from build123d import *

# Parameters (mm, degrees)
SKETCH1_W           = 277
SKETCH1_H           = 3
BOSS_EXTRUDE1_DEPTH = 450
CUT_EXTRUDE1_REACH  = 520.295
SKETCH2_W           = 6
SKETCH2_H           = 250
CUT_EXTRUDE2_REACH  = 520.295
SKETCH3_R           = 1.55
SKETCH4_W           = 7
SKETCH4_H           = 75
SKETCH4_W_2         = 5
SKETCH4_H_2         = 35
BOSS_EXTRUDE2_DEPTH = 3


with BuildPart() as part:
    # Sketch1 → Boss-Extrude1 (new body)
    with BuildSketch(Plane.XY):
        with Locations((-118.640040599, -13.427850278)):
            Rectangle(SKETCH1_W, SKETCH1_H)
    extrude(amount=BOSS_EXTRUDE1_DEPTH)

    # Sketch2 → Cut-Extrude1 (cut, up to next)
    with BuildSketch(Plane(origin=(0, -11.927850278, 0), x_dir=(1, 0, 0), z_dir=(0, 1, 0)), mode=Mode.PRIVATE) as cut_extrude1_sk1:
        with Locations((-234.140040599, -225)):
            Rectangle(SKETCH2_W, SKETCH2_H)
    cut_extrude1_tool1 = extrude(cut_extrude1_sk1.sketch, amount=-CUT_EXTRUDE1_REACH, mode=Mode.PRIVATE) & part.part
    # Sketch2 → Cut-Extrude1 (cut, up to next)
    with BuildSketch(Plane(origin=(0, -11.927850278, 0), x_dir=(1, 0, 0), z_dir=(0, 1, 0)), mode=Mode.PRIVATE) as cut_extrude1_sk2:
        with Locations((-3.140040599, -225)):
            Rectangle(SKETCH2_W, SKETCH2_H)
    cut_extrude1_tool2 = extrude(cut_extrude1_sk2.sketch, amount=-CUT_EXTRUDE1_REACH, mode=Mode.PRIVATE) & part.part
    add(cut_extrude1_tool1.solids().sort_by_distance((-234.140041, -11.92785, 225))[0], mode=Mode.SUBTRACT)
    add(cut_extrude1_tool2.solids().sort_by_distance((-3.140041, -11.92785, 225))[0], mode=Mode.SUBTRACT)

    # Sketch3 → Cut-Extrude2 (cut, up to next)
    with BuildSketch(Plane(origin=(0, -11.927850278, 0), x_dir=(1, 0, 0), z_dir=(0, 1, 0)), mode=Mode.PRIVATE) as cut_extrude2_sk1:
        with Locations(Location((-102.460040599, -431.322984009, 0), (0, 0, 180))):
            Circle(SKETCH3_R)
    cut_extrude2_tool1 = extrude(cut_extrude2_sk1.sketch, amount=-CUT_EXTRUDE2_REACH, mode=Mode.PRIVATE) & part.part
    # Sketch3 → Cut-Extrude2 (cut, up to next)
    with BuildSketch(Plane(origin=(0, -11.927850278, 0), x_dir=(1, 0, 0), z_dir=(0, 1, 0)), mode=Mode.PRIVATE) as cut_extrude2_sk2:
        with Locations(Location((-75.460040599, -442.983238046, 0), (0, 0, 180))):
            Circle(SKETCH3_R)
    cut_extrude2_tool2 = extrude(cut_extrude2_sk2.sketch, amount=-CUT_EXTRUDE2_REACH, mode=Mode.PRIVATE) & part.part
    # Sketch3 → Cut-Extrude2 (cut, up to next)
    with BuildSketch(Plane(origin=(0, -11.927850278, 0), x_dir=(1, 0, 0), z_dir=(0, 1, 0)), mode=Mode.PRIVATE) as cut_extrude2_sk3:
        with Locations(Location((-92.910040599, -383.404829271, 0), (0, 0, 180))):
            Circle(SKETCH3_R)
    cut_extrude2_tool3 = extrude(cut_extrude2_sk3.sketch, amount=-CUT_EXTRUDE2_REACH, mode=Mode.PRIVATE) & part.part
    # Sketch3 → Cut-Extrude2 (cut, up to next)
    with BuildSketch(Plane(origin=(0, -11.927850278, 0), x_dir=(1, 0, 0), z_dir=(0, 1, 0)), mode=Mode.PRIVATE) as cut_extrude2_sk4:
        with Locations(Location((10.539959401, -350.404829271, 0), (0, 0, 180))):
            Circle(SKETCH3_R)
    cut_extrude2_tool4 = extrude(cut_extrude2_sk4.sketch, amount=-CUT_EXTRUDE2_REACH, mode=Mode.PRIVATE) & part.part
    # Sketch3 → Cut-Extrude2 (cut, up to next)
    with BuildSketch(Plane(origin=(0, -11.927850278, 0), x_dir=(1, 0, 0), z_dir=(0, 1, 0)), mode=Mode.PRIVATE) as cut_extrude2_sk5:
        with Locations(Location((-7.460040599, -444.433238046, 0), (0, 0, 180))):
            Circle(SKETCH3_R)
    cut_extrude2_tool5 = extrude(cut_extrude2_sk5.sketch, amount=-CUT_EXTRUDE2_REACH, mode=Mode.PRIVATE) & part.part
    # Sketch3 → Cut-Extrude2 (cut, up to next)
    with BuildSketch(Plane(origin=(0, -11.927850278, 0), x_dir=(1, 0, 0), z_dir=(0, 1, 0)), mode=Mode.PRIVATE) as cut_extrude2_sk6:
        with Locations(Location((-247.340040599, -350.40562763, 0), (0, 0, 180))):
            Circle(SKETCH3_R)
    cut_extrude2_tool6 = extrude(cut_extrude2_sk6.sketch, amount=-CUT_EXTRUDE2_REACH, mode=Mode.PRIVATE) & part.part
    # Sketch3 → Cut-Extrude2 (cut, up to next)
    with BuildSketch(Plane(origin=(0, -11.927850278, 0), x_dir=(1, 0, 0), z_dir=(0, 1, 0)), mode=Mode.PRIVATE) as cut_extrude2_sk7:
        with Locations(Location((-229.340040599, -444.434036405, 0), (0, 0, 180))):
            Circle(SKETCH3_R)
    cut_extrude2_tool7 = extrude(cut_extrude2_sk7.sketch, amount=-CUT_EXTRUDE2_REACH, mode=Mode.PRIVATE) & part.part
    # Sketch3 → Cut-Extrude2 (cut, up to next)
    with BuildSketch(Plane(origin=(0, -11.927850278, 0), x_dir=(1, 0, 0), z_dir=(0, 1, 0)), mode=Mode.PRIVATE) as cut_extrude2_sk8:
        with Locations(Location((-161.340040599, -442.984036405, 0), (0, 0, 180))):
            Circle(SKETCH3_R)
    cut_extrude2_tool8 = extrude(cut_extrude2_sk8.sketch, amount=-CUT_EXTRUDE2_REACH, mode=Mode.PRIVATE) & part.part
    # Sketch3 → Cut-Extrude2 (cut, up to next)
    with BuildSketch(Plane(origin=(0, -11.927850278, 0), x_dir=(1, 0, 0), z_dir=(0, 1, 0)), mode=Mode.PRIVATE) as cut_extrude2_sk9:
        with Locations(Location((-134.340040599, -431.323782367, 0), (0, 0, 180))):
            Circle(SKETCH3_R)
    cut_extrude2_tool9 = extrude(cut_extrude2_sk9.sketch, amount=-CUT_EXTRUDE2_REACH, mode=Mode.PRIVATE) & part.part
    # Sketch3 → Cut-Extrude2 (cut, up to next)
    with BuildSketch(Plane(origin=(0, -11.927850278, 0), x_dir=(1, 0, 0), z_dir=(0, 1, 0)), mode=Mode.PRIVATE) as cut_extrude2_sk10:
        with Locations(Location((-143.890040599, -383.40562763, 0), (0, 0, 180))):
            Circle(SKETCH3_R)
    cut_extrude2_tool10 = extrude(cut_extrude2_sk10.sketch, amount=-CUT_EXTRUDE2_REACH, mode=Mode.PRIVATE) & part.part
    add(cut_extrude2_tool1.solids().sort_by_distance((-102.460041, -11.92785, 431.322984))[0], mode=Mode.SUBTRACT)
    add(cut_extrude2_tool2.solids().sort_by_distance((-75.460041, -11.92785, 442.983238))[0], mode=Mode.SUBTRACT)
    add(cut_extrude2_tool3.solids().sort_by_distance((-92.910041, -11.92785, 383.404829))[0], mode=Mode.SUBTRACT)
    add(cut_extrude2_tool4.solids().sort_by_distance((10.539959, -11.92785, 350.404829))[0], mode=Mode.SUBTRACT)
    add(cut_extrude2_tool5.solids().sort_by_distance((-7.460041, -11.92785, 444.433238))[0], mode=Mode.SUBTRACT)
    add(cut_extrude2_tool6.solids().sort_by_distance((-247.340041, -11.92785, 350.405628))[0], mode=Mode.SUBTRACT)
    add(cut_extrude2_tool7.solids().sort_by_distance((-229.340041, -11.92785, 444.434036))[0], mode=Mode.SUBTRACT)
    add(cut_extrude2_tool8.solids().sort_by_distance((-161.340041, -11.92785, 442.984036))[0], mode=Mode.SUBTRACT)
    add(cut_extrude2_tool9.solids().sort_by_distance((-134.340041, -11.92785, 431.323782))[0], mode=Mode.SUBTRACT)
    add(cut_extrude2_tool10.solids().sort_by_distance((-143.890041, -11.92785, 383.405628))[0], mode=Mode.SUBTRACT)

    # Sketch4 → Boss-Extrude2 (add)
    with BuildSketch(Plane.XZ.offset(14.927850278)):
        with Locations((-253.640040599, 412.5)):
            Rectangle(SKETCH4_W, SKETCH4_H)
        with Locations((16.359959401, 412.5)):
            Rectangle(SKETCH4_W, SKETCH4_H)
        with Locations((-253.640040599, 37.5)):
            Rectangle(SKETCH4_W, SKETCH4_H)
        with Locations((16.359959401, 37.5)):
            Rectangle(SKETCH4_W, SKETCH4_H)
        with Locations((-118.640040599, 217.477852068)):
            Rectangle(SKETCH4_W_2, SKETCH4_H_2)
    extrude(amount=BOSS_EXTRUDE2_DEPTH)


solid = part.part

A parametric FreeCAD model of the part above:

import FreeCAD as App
import Part
import Sketcher

V = App.Vector
Q = App.Units.Quantity


def add_polygon(sketch, points):
    """Adds a closed chain of lines whose ends are joined by coincident constraints."""
    first, n = sketch.GeometryCount, len(points)
    for a, b in zip(points, points[1:] + points[:1]):
        sketch.addGeometry(Part.LineSegment(App.Vector(*a, 0), App.Vector(*b, 0)), False)
    for i in range(n):
        sketch.addConstraint(Sketcher.Constraint("Coincident", first + i, 2, first + (i + 1) % n, 1))

doc = App.newDocument("Part")
params = doc.addObject("Spreadsheet::Sheet", "Params")
for row, (alias, value) in enumerate([
    ("sketch1_width", "277 mm"),
    ("sketch1_height", "3 mm"),
    ("pad1_length", "450 mm"),
    ("sketch2_width", "6 mm"),
    ("sketch2_height", "250 mm"),
    ("sketch3_width", "6 mm"),
    ("sketch3_height", "250 mm"),
    ("sketch4_diameter", "3.1 mm"),
    ("sketch5_diameter", "3.1 mm"),
    ("sketch6_diameter", "3.1 mm"),
    ("sketch7_diameter", "3.1 mm"),
    ("sketch8_diameter", "3.1 mm"),
    ("sketch9_diameter", "3.1 mm"),
    ("sketch10_diameter", "3.1 mm"),
    ("sketch11_diameter", "3.1 mm"),
    ("sketch12_diameter", "3.1 mm"),
    ("sketch13_diameter", "3.1 mm"),
    ("sketch14_width", "7 mm"),
    ("sketch14_width2", "5 mm"),
    ("sketch14_height", "75 mm"),
    ("sketch14_height2", "35 mm"),
    ("pad2_length", "3 mm"),
], start=1):
    params.set(f"A{row}", alias)
    params.set(f"B{row}", "=" + value)
    params.setAlias(f"B{row}", alias)

body = doc.addObject("PartDesign::Body", "Body")

sketch1 = doc.addObject("Sketcher::SketchObject", "Sketch")
body.addObject(sketch1)
sketch1.AttachmentSupport = (doc.XY_Plane, [""])
sketch1.MapMode = "FlatFace"
add_polygon(sketch1, [(-257.1, -11.9), (-257.1, -14.9), (19.9, -14.9), (19.9, -11.9)])
sketch1.addConstraint(Sketcher.Constraint("Vertical", 0))
sketch1.addConstraint(Sketcher.Constraint("Horizontal", 1))
sketch1.addConstraint(Sketcher.Constraint("Vertical", 2))
sketch1.addConstraint(Sketcher.Constraint("Horizontal", 3))
sketch1.addConstraint(Sketcher.Constraint("DistanceX", 1, 1, 1, 2, Q("277 mm")))
sketch1.addConstraint(Sketcher.Constraint("DistanceY", 0, 2, 0, 1, Q("3 mm")))
sketch1.addConstraint(Sketcher.Constraint("DistanceX", 0, 2, -1, 1, Q("257.140041 mm")))
sketch1.addConstraint(Sketcher.Constraint("DistanceY", 0, 2, -1, 1, Q("14.92785 mm")))
sketch1.setExpression("Constraints[8]", "Params.sketch1_width")
sketch1.setExpression("Constraints[9]", "Params.sketch1_height")
pad1 = doc.addObject("PartDesign::Pad", "Pad")
body.addObject(pad1)
pad1.Profile = sketch1
pad1.setExpression("Length", "Params.pad1_length")

sketch2 = doc.addObject("Sketcher::SketchObject", "Sketch001")
body.addObject(sketch2)
sketch2.AttachmentSupport = (doc.XZ_Plane, [""])
sketch2.MapMode = "FlatFace"
sketch2.AttachmentOffset = App.Placement(V(0, 0, 11.92785), App.Rotation())
add_polygon(sketch2, [(-237, 100), (-237, 350), (-231, 350), (-231, 100)])
sketch2.addConstraint(Sketcher.Constraint("Vertical", 0))
sketch2.addConstraint(Sketcher.Constraint("Horizontal", 1))
sketch2.addConstraint(Sketcher.Constraint("Vertical", 2))
sketch2.addConstraint(Sketcher.Constraint("Horizontal", 3))
sketch2.addConstraint(Sketcher.Constraint("DistanceX", 1, 1, 1, 2, Q("6 mm")))
sketch2.addConstraint(Sketcher.Constraint("DistanceY", 0, 1, 0, 2, Q("250 mm")))
sketch2.addConstraint(Sketcher.Constraint("DistanceY", -1, 1, 0, 2, Q("350 mm")))
sketch2.addConstraint(Sketcher.Constraint("DistanceX", 0, 2, -1, 1, Q("237.140041 mm")))
sketch2.setExpression("Constraints[8]", "Params.sketch2_width")
sketch2.setExpression("Constraints[9]", "Params.sketch2_height")
pocket1 = doc.addObject("PartDesign::Pocket", "Pocket")
body.addObject(pocket1)
pocket1.Profile = sketch2
pocket1.Type = "UpToFirst"
pocket1.Reversed = True

sketch3 = doc.addObject("Sketcher::SketchObject", "Sketch002")
body.addObject(sketch3)
sketch3.AttachmentSupport = (doc.XZ_Plane, [""])
sketch3.MapMode = "FlatFace"
sketch3.AttachmentOffset = App.Placement(V(0, 0, 11.92785), App.Rotation())
add_polygon(sketch3, [(-6, 100), (-6, 350), (0, 350), (0, 100)])
sketch3.addConstraint(Sketcher.Constraint("Vertical", 0))
sketch3.addConstraint(Sketcher.Constraint("Horizontal", 1))
sketch3.addConstraint(Sketcher.Constraint("Vertical", 2))
sketch3.addConstraint(Sketcher.Constraint("Horizontal", 3))
sketch3.addConstraint(Sketcher.Constraint("DistanceX", 1, 1, 1, 2, Q("6 mm")))
sketch3.addConstraint(Sketcher.Constraint("DistanceY", 0, 1, 0, 2, Q("250 mm")))
sketch3.addConstraint(Sketcher.Constraint("DistanceY", -1, 1, 0, 2, Q("350 mm")))
sketch3.addConstraint(Sketcher.Constraint("DistanceX", 0, 2, -1, 1, Q("6.140041 mm")))
sketch3.setExpression("Constraints[8]", "Params.sketch3_width")
sketch3.setExpression("Constraints[9]", "Params.sketch3_height")
pocket2 = doc.addObject("PartDesign::Pocket", "Pocket001")
body.addObject(pocket2)
pocket2.Profile = sketch3
pocket2.Type = "UpToFirst"
pocket2.Reversed = True

sketch4 = doc.addObject("Sketcher::SketchObject", "Sketch003")
body.addObject(sketch4)
sketch4.AttachmentSupport = (doc.XZ_Plane, [""])
sketch4.MapMode = "FlatFace"
sketch4.AttachmentOffset = App.Placement(V(0, 0, 11.92785), App.Rotation())
sketch4.addGeometry(Part.Circle(V(-102.5, 431.3, 0), V(0, 0, 1), 1.6), False)
sketch4.addConstraint(Sketcher.Constraint("Diameter", 0, Q("3.1 mm")))
sketch4.addConstraint(Sketcher.Constraint("DistanceX", 0, 3, -1, 1, Q("102.460041 mm")))
sketch4.addConstraint(Sketcher.Constraint("DistanceY", -1, 1, 0, 3, Q("431.322984 mm")))
sketch4.setExpression("Constraints[0]", "Params.sketch4_diameter")
pocket3 = doc.addObject("PartDesign::Pocket", "Pocket002")
body.addObject(pocket3)
pocket3.Profile = sketch4
pocket3.Type = "UpToFirst"
pocket3.Reversed = True

sketch5 = doc.addObject("Sketcher::SketchObject", "Sketch004")
body.addObject(sketch5)
sketch5.AttachmentSupport = (doc.XZ_Plane, [""])
sketch5.MapMode = "FlatFace"
sketch5.AttachmentOffset = App.Placement(V(0, 0, 11.92785), App.Rotation())
sketch5.addGeometry(Part.Circle(V(-75.5, 443, 0), V(0, 0, 1), 1.6), False)
sketch5.addConstraint(Sketcher.Constraint("Diameter", 0, Q("3.1 mm")))
sketch5.addConstraint(Sketcher.Constraint("DistanceX", 0, 3, -1, 1, Q("75.460041 mm")))
sketch5.addConstraint(Sketcher.Constraint("DistanceY", -1, 1, 0, 3, Q("442.983238 mm")))
sketch5.setExpression("Constraints[0]", "Params.sketch5_diameter")
pocket4 = doc.addObject("PartDesign::Pocket", "Pocket003")
body.addObject(pocket4)
pocket4.Profile = sketch5
pocket4.Type = "UpToFirst"
pocket4.Reversed = True

sketch6 = doc.addObject("Sketcher::SketchObject", "Sketch005")
body.addObject(sketch6)
sketch6.AttachmentSupport = (doc.XZ_Plane, [""])
sketch6.MapMode = "FlatFace"
sketch6.AttachmentOffset = App.Placement(V(0, 0, 11.92785), App.Rotation())
sketch6.addGeometry(Part.Circle(V(-92.9, 383.4, 0), V(0, 0, 1), 1.6), False)
sketch6.addConstraint(Sketcher.Constraint("Diameter", 0, Q("3.1 mm")))
sketch6.addConstraint(Sketcher.Constraint("DistanceX", 0, 3, -1, 1, Q("92.910041 mm")))
sketch6.addConstraint(Sketcher.Constraint("DistanceY", -1, 1, 0, 3, Q("383.404829 mm")))
sketch6.setExpression("Constraints[0]", "Params.sketch6_diameter")
pocket5 = doc.addObject("PartDesign::Pocket", "Pocket004")
body.addObject(pocket5)
pocket5.Profile = sketch6
pocket5.Type = "UpToFirst"
pocket5.Reversed = True

sketch7 = doc.addObject("Sketcher::SketchObject", "Sketch006")
body.addObject(sketch7)
sketch7.AttachmentSupport = (doc.XZ_Plane, [""])
sketch7.MapMode = "FlatFace"
sketch7.AttachmentOffset = App.Placement(V(0, 0, 11.92785), App.Rotation())
sketch7.addGeometry(Part.Circle(V(10.5, 350.4, 0), V(0, 0, 1), 1.6), False)
sketch7.addConstraint(Sketcher.Constraint("Diameter", 0, Q("3.1 mm")))
sketch7.addConstraint(Sketcher.Constraint("DistanceX", -1, 1, 0, 3, Q("10.539959 mm")))
sketch7.addConstraint(Sketcher.Constraint("DistanceY", -1, 1, 0, 3, Q("350.404829 mm")))
sketch7.setExpression("Constraints[0]", "Params.sketch7_diameter")
pocket6 = doc.addObject("PartDesign::Pocket", "Pocket005")
body.addObject(pocket6)
pocket6.Profile = sketch7
pocket6.Type = "UpToFirst"
pocket6.Reversed = True

sketch8 = doc.addObject("Sketcher::SketchObject", "Sketch007")
body.addObject(sketch8)
sketch8.AttachmentSupport = (doc.XZ_Plane, [""])
sketch8.MapMode = "FlatFace"
sketch8.AttachmentOffset = App.Placement(V(0, 0, 11.92785), App.Rotation())
sketch8.addGeometry(Part.Circle(V(-7.5, 444.4, 0), V(0, 0, 1), 1.6), False)
sketch8.addConstraint(Sketcher.Constraint("Diameter", 0, Q("3.1 mm")))
sketch8.addConstraint(Sketcher.Constraint("DistanceX", 0, 3, -1, 1, Q("7.460041 mm")))
sketch8.addConstraint(Sketcher.Constraint("DistanceY", -1, 1, 0, 3, Q("444.433238 mm")))
sketch8.setExpression("Constraints[0]", "Params.sketch8_diameter")
pocket7 = doc.addObject("PartDesign::Pocket", "Pocket006")
body.addObject(pocket7)
pocket7.Profile = sketch8
pocket7.Type = "UpToFirst"
pocket7.Reversed = True

sketch9 = doc.addObject("Sketcher::SketchObject", "Sketch008")
body.addObject(sketch9)
sketch9.AttachmentSupport = (doc.XZ_Plane, [""])
sketch9.MapMode = "FlatFace"
sketch9.AttachmentOffset = App.Placement(V(0, 0, 11.92785), App.Rotation())
sketch9.addGeometry(Part.Circle(V(-247.3, 350.4, 0), V(0, 0, 1), 1.6), False)
sketch9.addConstraint(Sketcher.Constraint("Diameter", 0, Q("3.1 mm")))
sketch9.addConstraint(Sketcher.Constraint("DistanceX", 0, 3, -1, 1, Q("247.340041 mm")))
sketch9.addConstraint(Sketcher.Constraint("DistanceY", -1, 1, 0, 3, Q("350.405628 mm")))
sketch9.setExpression("Constraints[0]", "Params.sketch9_diameter")
pocket8 = doc.addObject("PartDesign::Pocket", "Pocket007")
body.addObject(pocket8)
pocket8.Profile = sketch9
pocket8.Type = "UpToFirst"
pocket8.Reversed = True

sketch10 = doc.addObject("Sketcher::SketchObject", "Sketch009")
body.addObject(sketch10)
sketch10.AttachmentSupport = (doc.XZ_Plane, [""])
sketch10.MapMode = "FlatFace"
sketch10.AttachmentOffset = App.Placement(V(0, 0, 11.92785), App.Rotation())
sketch10.addGeometry(Part.Circle(V(-229.3, 444.4, 0), V(0, 0, 1), 1.6), False)
sketch10.addConstraint(Sketcher.Constraint("Diameter", 0, Q("3.1 mm")))
sketch10.addConstraint(Sketcher.Constraint("DistanceX", 0, 3, -1, 1, Q("229.340041 mm")))
sketch10.addConstraint(Sketcher.Constraint("DistanceY", -1, 1, 0, 3, Q("444.434036 mm")))
sketch10.setExpression("Constraints[0]", "Params.sketch10_diameter")
pocket9 = doc.addObject("PartDesign::Pocket", "Pocket008")
body.addObject(pocket9)
pocket9.Profile = sketch10
pocket9.Type = "UpToFirst"
pocket9.Reversed = True

sketch11 = doc.addObject("Sketcher::SketchObject", "Sketch010")
body.addObject(sketch11)
sketch11.AttachmentSupport = (doc.XZ_Plane, [""])
sketch11.MapMode = "FlatFace"
sketch11.AttachmentOffset = App.Placement(V(0, 0, 11.92785), App.Rotation())
sketch11.addGeometry(Part.Circle(V(-161.3, 443, 0), V(0, 0, 1), 1.6), False)
sketch11.addConstraint(Sketcher.Constraint("Diameter", 0, Q("3.1 mm")))
sketch11.addConstraint(Sketcher.Constraint("DistanceX", 0, 3, -1, 1, Q("161.340041 mm")))
sketch11.addConstraint(Sketcher.Constraint("DistanceY", -1, 1, 0, 3, Q("442.984036 mm")))
sketch11.setExpression("Constraints[0]", "Params.sketch11_diameter")
pocket10 = doc.addObject("PartDesign::Pocket", "Pocket009")
body.addObject(pocket10)
pocket10.Profile = sketch11
pocket10.Type = "UpToFirst"
pocket10.Reversed = True

sketch12 = doc.addObject("Sketcher::SketchObject", "Sketch011")
body.addObject(sketch12)
sketch12.AttachmentSupport = (doc.XZ_Plane, [""])
sketch12.MapMode = "FlatFace"
sketch12.AttachmentOffset = App.Placement(V(0, 0, 11.92785), App.Rotation())
sketch12.addGeometry(Part.Circle(V(-134.3, 431.3, 0), V(0, 0, 1), 1.6), False)
sketch12.addConstraint(Sketcher.Constraint("Diameter", 0, Q("3.1 mm")))
sketch12.addConstraint(Sketcher.Constraint("DistanceX", 0, 3, -1, 1, Q("134.340041 mm")))
sketch12.addConstraint(Sketcher.Constraint("DistanceY", -1, 1, 0, 3, Q("431.323782 mm")))
sketch12.setExpression("Constraints[0]", "Params.sketch12_diameter")
pocket11 = doc.addObject("PartDesign::Pocket", "Pocket010")
body.addObject(pocket11)
pocket11.Profile = sketch12
pocket11.Type = "UpToFirst"
pocket11.Reversed = True

sketch13 = doc.addObject("Sketcher::SketchObject", "Sketch012")
body.addObject(sketch13)
sketch13.AttachmentSupport = (doc.XZ_Plane, [""])
sketch13.MapMode = "FlatFace"
sketch13.AttachmentOffset = App.Placement(V(0, 0, 11.92785), App.Rotation())
sketch13.addGeometry(Part.Circle(V(-143.9, 383.4, 0), V(0, 0, 1), 1.6), False)
sketch13.addConstraint(Sketcher.Constraint("Diameter", 0, Q("3.1 mm")))
sketch13.addConstraint(Sketcher.Constraint("DistanceX", 0, 3, -1, 1, Q("143.890041 mm")))
sketch13.addConstraint(Sketcher.Constraint("DistanceY", -1, 1, 0, 3, Q("383.405628 mm")))
sketch13.setExpression("Constraints[0]", "Params.sketch13_diameter")
pocket12 = doc.addObject("PartDesign::Pocket", "Pocket011")
body.addObject(pocket12)
pocket12.Profile = sketch13
pocket12.Type = "UpToFirst"
pocket12.Reversed = True

sketch14 = doc.addObject("Sketcher::SketchObject", "Sketch013")
body.addObject(sketch14)
sketch14.AttachmentSupport = (doc.XZ_Plane, [""])
sketch14.MapMode = "FlatFace"
sketch14.AttachmentOffset = App.Placement(V(0, 0, 14.92785), App.Rotation())
add_polygon(sketch14, [(-257, 450), (-257, 375), (-250, 375), (-250, 450)])
add_polygon(sketch14, [(13, 450), (13, 375), (20, 375), (20, 450)])
add_polygon(sketch14, [(-257, 75), (-257, 0), (-250, 0), (-250, 75)])
add_polygon(sketch14, [(13, 75), (13, 0), (20, 0), (20, 75)])
add_polygon(sketch14, [(-121, 235), (-121, 200), (-116, 200), (-116, 235)])
sketch14.addConstraint(Sketcher.Constraint("Vertical", 0))
sketch14.addConstraint(Sketcher.Constraint("Horizontal", 1))
sketch14.addConstraint(Sketcher.Constraint("Vertical", 2))
sketch14.addConstraint(Sketcher.Constraint("Horizontal", 3))
sketch14.addConstraint(Sketcher.Constraint("Vertical", 4))
sketch14.addConstraint(Sketcher.Constraint("Horizontal", 5))
sketch14.addConstraint(Sketcher.Constraint("Vertical", 6))
sketch14.addConstraint(Sketcher.Constraint("Horizontal", 7))
sketch14.addConstraint(Sketcher.Constraint("Vertical", 8))
sketch14.addConstraint(Sketcher.Constraint("Horizontal", 9))
sketch14.addConstraint(Sketcher.Constraint("Vertical", 10))
sketch14.addConstraint(Sketcher.Constraint("Horizontal", 11))
sketch14.addConstraint(Sketcher.Constraint("Vertical", 12))
sketch14.addConstraint(Sketcher.Constraint("Horizontal", 13))
sketch14.addConstraint(Sketcher.Constraint("Vertical", 14))
sketch14.addConstraint(Sketcher.Constraint("Horizontal", 15))
sketch14.addConstraint(Sketcher.Constraint("Vertical", 16))
sketch14.addConstraint(Sketcher.Constraint("Horizontal", 17))
sketch14.addConstraint(Sketcher.Constraint("Vertical", 18))
sketch14.addConstraint(Sketcher.Constraint("Horizontal", 19))
sketch14.addConstraint(Sketcher.Constraint("PointOnObject", 8, 2, -1))
sketch14.addConstraint(Sketcher.Constraint("PointOnObject", 12, 2, -1))
sketch14.addConstraint(Sketcher.Constraint("Horizontal", 1, 2, 4, 2))
sketch14.addConstraint(Sketcher.Constraint("Horizontal", 3, 2, 6, 2))
sketch14.addConstraint(Sketcher.Constraint("Horizontal", 11, 2, 14, 2))
sketch14.addConstraint(Sketcher.Constraint("Vertical", 3, 2, 8, 2))
sketch14.addConstraint(Sketcher.Constraint("Vertical", 2, 2, 9, 2))
sketch14.addConstraint(Sketcher.Constraint("Vertical", 7, 2, 12, 2))
sketch14.addConstraint(Sketcher.Constraint("Vertical", 6, 2, 13, 2))
sketch14.addConstraint(Sketcher.Constraint("Equal", 3, 5))
sketch14.addConstraint(Sketcher.Constraint("Equal", 6, 8))
sketch14.addConstraint(Sketcher.Constraint("DistanceX", 1, 1, 1, 2, Q("7 mm")))
sketch14.addConstraint(Sketcher.Constraint("DistanceX", 17, 1, 17, 2, Q("5 mm")))
sketch14.addConstraint(Sketcher.Constraint("DistanceY", 0, 2, 0, 1, Q("75 mm")))
sketch14.addConstraint(Sketcher.Constraint("DistanceY", 16, 2, 16, 1, Q("35 mm")))
sketch14.addConstraint(Sketcher.Constraint("DistanceY", -1, 1, 0, 2, Q("375 mm")))
sketch14.addConstraint(Sketcher.Constraint("DistanceX", 1, 2, 4, 2, Q("263 mm")))
sketch14.addConstraint(Sketcher.Constraint("DistanceX", 10, 2, 16, 2, Q("129 mm")))
sketch14.addConstraint(Sketcher.Constraint("DistanceX", 0, 2, -1, 1, Q("257.140041 mm")))
sketch14.addConstraint(Sketcher.Constraint("DistanceY", -1, 1, 16, 2, Q("199.977852 mm")))
sketch14.setExpression("Constraints[51]", "Params.sketch14_width")
sketch14.setExpression("Constraints[52]", "Params.sketch14_width2")
sketch14.setExpression("Constraints[53]", "Params.sketch14_height")
sketch14.setExpression("Constraints[54]", "Params.sketch14_height2")
pad2 = doc.addObject("PartDesign::Pad", "Pad001")
body.addObject(pad2)
pad2.Profile = sketch14
pad2.setExpression("Length", "Params.pad2_length")

doc.recompute()
